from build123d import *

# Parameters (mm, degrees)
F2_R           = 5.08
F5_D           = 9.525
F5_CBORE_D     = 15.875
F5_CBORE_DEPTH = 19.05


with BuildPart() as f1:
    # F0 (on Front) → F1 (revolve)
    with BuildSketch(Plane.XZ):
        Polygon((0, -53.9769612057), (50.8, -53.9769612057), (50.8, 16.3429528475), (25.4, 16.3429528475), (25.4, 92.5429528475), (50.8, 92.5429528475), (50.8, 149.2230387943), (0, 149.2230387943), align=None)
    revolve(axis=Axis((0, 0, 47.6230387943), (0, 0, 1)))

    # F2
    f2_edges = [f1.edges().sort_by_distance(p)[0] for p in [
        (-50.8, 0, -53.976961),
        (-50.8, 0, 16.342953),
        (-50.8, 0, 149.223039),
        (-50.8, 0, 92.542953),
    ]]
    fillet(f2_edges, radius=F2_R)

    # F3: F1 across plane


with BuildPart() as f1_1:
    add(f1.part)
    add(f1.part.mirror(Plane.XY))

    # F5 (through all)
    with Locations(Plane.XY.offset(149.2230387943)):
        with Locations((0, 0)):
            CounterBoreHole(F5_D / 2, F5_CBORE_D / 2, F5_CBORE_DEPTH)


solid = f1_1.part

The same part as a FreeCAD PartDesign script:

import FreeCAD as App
import Part
import Sketcher
from FreeCAD import Vector
Q = App.Units.Quantity


def edges_at(feature, points):
    """Names of the edges that pass closest to the given points."""
    edges = feature.Shape.Edges
    near = lambda p: min(range(len(edges)), key=lambda i: edges[i].distToShape(Part.Vertex(*p))[0])
    return sorted({f"Edge{near(p) + 1}" for p in points})

doc = App.newDocument("Part")
params = doc.addObject("Spreadsheet::Sheet", "Params")
for row, (alias, value) in enumerate([
    ("sketch1_width", "2 in"),
    ("sketch1_width2", "1 in"),
    ("sketch1_height", "3 in"),
    ("sketch1_height2", "8 in"),
    ("revolution_angle", "360 deg"),
    ("fillet_radius", "0.2 in"),
    ("sketch2_diameter", "0.375 in"),
    ("hole_diameter", "0.375 in"),
    ("hole_cbore_diameter", "0.625 in"),
    ("hole_cbore_depth", "0.75 in"),
], start=1):
    params.set(f"A{row}", alias)
    params.set(f"B{row}", "=" + value)
    params.setAlias(f"B{row}", alias)

body = doc.addObject("PartDesign::Body", "Body")

# Sketch on XZ plane
sketch1 = body.newObject("Sketcher::SketchObject", "Sketch")
sketch1.AttachmentSupport = (doc.getObject("XZ_Plane"), [""])
sketch1.MapMode = "FlatFace"
sketch1.addGeometry([
    Part.LineSegment(Vector(0, -54, 0), Vector(51, -54, 0)),  # 0
    Part.LineSegment(Vector(51, -54, 0), Vector(51, 16, 0)),  # 1
    Part.LineSegment(Vector(51, 16, 0), Vector(25, 16, 0)),  # 2
    Part.LineSegment(Vector(25, 16, 0), Vector(25, 93, 0)),  # 3
    Part.LineSegment(Vector(25, 93, 0), Vector(51, 93, 0)),  # 4
    Part.LineSegment(Vector(51, 93, 0), Vector(51, 149, 0)),  # 5
    Part.LineSegment(Vector(51, 149, 0), Vector(0, 149, 0)),  # 6
    Part.LineSegment(Vector(0, 149, 0), Vector(0, -54, 0)),  # 7
], False)
sketch1.addConstraint([
    Sketcher.Constraint("Coincident", 0, 2, 1, 1),
    Sketcher.Constraint("Coincident", 1, 2, 2, 1),
    Sketcher.Constraint("Coincident", 2, 2, 3, 1),
    Sketcher.Constraint("Coincident", 3, 2, 4, 1),
    Sketcher.Constraint("Coincident", 4, 2, 5, 1),
    Sketcher.Constraint("Coincident", 5, 2, 6, 1),
    Sketcher.Constraint("Coincident", 6, 2, 7, 1),
    Sketcher.Constraint("Coincident", 7, 2, 0, 1),
    Sketcher.Constraint("Horizontal", 0),
    Sketcher.Constraint("Vertical", 1),
    Sketcher.Constraint("Horizontal", 2),
    Sketcher.Constraint("Vertical", 3),
    Sketcher.Constraint("Horizontal", 4),
    Sketcher.Constraint("Vertical", 5),
    Sketcher.Constraint("Horizontal", 6),
    Sketcher.Constraint("Vertical", 7),
    Sketcher.Constraint("PointOnObject", 6, 2, -2),
    Sketcher.Constraint("Vertical", 1, 2, 4, 2),
    Sketcher.Constraint("DistanceX", 0, 1, 0, 2, Q("2 in")),
    Sketcher.Constraint("DistanceX", 2, 2, 2, 1, Q("1 in")),
    Sketcher.Constraint("DistanceY", 3, 1, 3, 2, Q("3 in")),
    Sketcher.Constraint("DistanceY", 7, 2, 7, 1, Q("8 in")),
    Sketcher.Constraint("DistanceY", 1, 1, 1, 2, 70.319914),
    Sketcher.Constraint("DistanceY", 0, 2, -1, 1, 53.976961),
])
sketch1.setExpression("Constraints[18]", "Params.sketch1_width")
sketch1.setExpression("Constraints[19]", "Params.sketch1_width2")
sketch1.setExpression("Constraints[20]", "Params.sketch1_height")
sketch1.setExpression("Constraints[21]", "Params.sketch1_height2")
revolution = body.newObject("PartDesign::Revolution", "Revolution")
revolution.Profile = sketch1
revolution.ReferenceAxis = (sketch1, ["V_Axis"])
revolution.setExpression("Angle", "Params.revolution_angle")
doc.recompute()

fillet = body.newObject("PartDesign::Fillet", "Fillet")
fillet.Base = (revolution, edges_at(revolution, [
    (-50.8, 0, -53.977),
    (-50.8, 0, 16.343),
    (-50.8, 0, 149.223),
    (-50.8, 0, 92.543),
]))
fillet.setExpression("Radius", "Params.fillet_radius")
body2 = doc.addObject("PartDesign::Body", "Body001")
doc.recompute()

body2.BaseFeature = body
doc.recompute()

mirroring = doc.addObject("Part::Mirroring", "Mirroring")
mirroring.Source = body
mirroring.Base = Vector(0, 0, 0)
mirroring.Normal = Vector(0, 0, 1)
body3 = doc.addObject("PartDesign::Body", "Body002")
body3.BaseFeature = mirroring
boolean = body2.newObject("PartDesign::Boolean", "Boolean")
boolean.Type = "Fuse"
boolean.addObjects([body3])
doc.recompute()

# Sketch on XY plane
sketch2 = body2.newObject("Sketcher::SketchObject", "Sketch001")
sketch2.AttachmentSupport = (doc.getObject("XY_Plane001"), [""])
sketch2.MapMode = "FlatFace"
sketch2.AttachmentOffset = App.Placement(Vector(0, 0, 149.223039), App.Rotation())
sketch2.addGeometry(Part.Circle(Vector(0, 0, 0), Vector(0, 0, 1), 4.8), False)
sketch2.addConstraint([
    Sketcher.Constraint("Coincident", 0, 3, -1, 1),
    Sketcher.Constraint("Diameter", 0, Q("0.375 in")),
])
sketch2.setExpression("Constraints[1]", "Params.sketch2_diameter")
doc.recompute()
hole = body2.newObject("PartDesign::Hole", "Hole")
hole.Profile = sketch2
hole.ThreadType = "None"
hole.setExpression("Diameter", "Params.hole_diameter")
hole.DepthType = "ThroughAll"
hole.HoleCutType = "Counterbore"
hole.setExpression("HoleCutDiameter", "Params.hole_cbore_diameter")
hole.setExpression("HoleCutDepth", "Params.hole_cbore_depth")
mirroring.Visibility = False

doc.recompute()
